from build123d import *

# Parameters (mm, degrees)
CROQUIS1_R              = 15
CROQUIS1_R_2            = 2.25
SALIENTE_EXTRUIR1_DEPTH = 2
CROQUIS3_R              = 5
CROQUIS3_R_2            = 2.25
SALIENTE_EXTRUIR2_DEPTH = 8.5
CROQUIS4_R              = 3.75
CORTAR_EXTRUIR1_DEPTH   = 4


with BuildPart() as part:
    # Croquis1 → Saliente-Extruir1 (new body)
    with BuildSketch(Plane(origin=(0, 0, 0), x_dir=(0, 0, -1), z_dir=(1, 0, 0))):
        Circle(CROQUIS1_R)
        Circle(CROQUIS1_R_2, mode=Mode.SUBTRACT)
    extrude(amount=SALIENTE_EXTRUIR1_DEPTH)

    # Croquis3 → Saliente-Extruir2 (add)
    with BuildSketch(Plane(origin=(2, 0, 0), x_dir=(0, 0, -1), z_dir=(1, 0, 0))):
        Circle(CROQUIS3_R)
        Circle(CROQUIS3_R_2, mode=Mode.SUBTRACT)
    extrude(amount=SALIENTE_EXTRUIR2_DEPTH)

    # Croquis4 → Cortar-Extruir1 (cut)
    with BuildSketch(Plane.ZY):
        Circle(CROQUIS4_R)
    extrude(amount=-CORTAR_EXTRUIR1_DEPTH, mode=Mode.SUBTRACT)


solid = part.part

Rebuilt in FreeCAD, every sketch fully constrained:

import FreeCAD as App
import Part
import Sketcher
Q = App.Units.Quantity

doc = App.newDocument("Part")
params = doc.addObject("Spreadsheet::Sheet", "Params")
for row, (alias, value) in enumerate([
    ("sketch1_diameter", "30 mm"),
    ("sketch1_diameter2", "4.5 mm"),
    ("pad1_length", "2 mm"),
    ("sketch2_diameter", "10 mm"),
    ("sketch2_diameter2", "4.5 mm"),
    ("pad2_length", "8.5 mm"),
    ("sketch3_diameter", "7.5 mm"),
    ("pocket1_length", "4 mm"),
], start=1):
    params.set(f"A{row}", alias)
    params.set(f"B{row}", "=" + value)
    params.setAlias(f"B{row}", alias)

body = doc.addObject("PartDesign::Body", "Body")

# Sketch on YZ plane
sketch1 = doc.addObject("Sketcher::SketchObject", "Sketch")
body.addObject(sketch1)
sketch1.AttachmentSupport = (doc.YZ_Plane, [""])
sketch1.MapMode = "FlatFace"
sketch1.addGeometry([
    Part.Circle(App.Vector(0, 0, 0), App.Vector(0, 0, 1), 15),
    Part.Circle(App.Vector(0, 0, 0), App.Vector(0, 0, 1), 2.2),
], False)
sketch1.addConstraint([
    Sketcher.Constraint("Coincident", 0, 3, -1, 1),
    Sketcher.Constraint("Coincident", 1, 3, -1, 1),
    Sketcher.Constraint("Diameter", 0, Q("30 mm")),
    Sketcher.Constraint("Diameter", 1, Q("4.5 mm")),
])
sketch1.setExpression("Constraints[2]", "Params.sketch1_diameter")
sketch1.setExpression("Constraints[3]", "Params.sketch1_diameter2")
pad1 = doc.addObject("PartDesign::Pad", "Pad")
body.addObject(pad1)
pad1.Profile = sketch1
pad1.setExpression("Length", "Params.pad1_length")

# Sketch on YZ plane
sketch2 = doc.addObject("Sketcher::SketchObject", "Sketch001")
body.addObject(sketch2)
sketch2.AttachmentSupport = (doc.YZ_Plane, [""])
sketch2.MapMode = "FlatFace"
sketch2.AttachmentOffset = App.Placement(App.Vector(0, 0, 2), App.Rotation())
sketch2.addGeometry([
    Part.Circle(App.Vector(0, 0, 0), App.Vector(0, 0, 1), 5),
    Part.Circle(App.Vector(0, 0, 0), App.Vector(0, 0, 1), 2.2),
], False)
sketch2.addConstraint([
    Sketcher.Constraint("Coincident", 0, 3, -1, 1),
    Sketcher.Constraint("Coincident", 1, 3, -1, 1),
    Sketcher.Constraint("Diameter", 0, Q("10 mm")),
    Sketcher.Constraint("Diameter", 1, Q("4.5 mm")),
])
sketch2.setExpression("Constraints[2]", "Params.sketch2_diameter")
sketch2.setExpression("Constraints[3]", "Params.sketch2_diameter2")
pad2 = doc.addObject("PartDesign::Pad", "Pad001")
body.addObject(pad2)
pad2.Profile = sketch2
pad2.setExpression("Length", "Params.pad2_length")

# Sketch on YZ plane
sketch3 = doc.addObject("Sketcher::SketchObject", "Sketch002")
body.addObject(sketch3)
sketch3.AttachmentSupport = (doc.YZ_Plane, [""])
sketch3.MapMode = "FlatFace"
sketch3.addGeometry(Part.Circle(App.Vector(0, 0, 0), App.Vector(0, 0, 1), 3.8), False)
sketch3.addConstraint([
    Sketcher.Constraint("Coincident", 0, 3, -1, 1),
    Sketcher.Constraint("Diameter", 0, Q("7.5 mm")),
])
sketch3.setExpression("Constraints[1]", "Params.sketch3_diameter")
pocket1 = doc.addObject("PartDesign::Pocket", "Pocket")
body.addObject(pocket1)
pocket1.Profile = sketch3
pocket1.setExpression("Length", "Params.pocket1_length")
pocket1.Reversed = True

doc.recompute()
